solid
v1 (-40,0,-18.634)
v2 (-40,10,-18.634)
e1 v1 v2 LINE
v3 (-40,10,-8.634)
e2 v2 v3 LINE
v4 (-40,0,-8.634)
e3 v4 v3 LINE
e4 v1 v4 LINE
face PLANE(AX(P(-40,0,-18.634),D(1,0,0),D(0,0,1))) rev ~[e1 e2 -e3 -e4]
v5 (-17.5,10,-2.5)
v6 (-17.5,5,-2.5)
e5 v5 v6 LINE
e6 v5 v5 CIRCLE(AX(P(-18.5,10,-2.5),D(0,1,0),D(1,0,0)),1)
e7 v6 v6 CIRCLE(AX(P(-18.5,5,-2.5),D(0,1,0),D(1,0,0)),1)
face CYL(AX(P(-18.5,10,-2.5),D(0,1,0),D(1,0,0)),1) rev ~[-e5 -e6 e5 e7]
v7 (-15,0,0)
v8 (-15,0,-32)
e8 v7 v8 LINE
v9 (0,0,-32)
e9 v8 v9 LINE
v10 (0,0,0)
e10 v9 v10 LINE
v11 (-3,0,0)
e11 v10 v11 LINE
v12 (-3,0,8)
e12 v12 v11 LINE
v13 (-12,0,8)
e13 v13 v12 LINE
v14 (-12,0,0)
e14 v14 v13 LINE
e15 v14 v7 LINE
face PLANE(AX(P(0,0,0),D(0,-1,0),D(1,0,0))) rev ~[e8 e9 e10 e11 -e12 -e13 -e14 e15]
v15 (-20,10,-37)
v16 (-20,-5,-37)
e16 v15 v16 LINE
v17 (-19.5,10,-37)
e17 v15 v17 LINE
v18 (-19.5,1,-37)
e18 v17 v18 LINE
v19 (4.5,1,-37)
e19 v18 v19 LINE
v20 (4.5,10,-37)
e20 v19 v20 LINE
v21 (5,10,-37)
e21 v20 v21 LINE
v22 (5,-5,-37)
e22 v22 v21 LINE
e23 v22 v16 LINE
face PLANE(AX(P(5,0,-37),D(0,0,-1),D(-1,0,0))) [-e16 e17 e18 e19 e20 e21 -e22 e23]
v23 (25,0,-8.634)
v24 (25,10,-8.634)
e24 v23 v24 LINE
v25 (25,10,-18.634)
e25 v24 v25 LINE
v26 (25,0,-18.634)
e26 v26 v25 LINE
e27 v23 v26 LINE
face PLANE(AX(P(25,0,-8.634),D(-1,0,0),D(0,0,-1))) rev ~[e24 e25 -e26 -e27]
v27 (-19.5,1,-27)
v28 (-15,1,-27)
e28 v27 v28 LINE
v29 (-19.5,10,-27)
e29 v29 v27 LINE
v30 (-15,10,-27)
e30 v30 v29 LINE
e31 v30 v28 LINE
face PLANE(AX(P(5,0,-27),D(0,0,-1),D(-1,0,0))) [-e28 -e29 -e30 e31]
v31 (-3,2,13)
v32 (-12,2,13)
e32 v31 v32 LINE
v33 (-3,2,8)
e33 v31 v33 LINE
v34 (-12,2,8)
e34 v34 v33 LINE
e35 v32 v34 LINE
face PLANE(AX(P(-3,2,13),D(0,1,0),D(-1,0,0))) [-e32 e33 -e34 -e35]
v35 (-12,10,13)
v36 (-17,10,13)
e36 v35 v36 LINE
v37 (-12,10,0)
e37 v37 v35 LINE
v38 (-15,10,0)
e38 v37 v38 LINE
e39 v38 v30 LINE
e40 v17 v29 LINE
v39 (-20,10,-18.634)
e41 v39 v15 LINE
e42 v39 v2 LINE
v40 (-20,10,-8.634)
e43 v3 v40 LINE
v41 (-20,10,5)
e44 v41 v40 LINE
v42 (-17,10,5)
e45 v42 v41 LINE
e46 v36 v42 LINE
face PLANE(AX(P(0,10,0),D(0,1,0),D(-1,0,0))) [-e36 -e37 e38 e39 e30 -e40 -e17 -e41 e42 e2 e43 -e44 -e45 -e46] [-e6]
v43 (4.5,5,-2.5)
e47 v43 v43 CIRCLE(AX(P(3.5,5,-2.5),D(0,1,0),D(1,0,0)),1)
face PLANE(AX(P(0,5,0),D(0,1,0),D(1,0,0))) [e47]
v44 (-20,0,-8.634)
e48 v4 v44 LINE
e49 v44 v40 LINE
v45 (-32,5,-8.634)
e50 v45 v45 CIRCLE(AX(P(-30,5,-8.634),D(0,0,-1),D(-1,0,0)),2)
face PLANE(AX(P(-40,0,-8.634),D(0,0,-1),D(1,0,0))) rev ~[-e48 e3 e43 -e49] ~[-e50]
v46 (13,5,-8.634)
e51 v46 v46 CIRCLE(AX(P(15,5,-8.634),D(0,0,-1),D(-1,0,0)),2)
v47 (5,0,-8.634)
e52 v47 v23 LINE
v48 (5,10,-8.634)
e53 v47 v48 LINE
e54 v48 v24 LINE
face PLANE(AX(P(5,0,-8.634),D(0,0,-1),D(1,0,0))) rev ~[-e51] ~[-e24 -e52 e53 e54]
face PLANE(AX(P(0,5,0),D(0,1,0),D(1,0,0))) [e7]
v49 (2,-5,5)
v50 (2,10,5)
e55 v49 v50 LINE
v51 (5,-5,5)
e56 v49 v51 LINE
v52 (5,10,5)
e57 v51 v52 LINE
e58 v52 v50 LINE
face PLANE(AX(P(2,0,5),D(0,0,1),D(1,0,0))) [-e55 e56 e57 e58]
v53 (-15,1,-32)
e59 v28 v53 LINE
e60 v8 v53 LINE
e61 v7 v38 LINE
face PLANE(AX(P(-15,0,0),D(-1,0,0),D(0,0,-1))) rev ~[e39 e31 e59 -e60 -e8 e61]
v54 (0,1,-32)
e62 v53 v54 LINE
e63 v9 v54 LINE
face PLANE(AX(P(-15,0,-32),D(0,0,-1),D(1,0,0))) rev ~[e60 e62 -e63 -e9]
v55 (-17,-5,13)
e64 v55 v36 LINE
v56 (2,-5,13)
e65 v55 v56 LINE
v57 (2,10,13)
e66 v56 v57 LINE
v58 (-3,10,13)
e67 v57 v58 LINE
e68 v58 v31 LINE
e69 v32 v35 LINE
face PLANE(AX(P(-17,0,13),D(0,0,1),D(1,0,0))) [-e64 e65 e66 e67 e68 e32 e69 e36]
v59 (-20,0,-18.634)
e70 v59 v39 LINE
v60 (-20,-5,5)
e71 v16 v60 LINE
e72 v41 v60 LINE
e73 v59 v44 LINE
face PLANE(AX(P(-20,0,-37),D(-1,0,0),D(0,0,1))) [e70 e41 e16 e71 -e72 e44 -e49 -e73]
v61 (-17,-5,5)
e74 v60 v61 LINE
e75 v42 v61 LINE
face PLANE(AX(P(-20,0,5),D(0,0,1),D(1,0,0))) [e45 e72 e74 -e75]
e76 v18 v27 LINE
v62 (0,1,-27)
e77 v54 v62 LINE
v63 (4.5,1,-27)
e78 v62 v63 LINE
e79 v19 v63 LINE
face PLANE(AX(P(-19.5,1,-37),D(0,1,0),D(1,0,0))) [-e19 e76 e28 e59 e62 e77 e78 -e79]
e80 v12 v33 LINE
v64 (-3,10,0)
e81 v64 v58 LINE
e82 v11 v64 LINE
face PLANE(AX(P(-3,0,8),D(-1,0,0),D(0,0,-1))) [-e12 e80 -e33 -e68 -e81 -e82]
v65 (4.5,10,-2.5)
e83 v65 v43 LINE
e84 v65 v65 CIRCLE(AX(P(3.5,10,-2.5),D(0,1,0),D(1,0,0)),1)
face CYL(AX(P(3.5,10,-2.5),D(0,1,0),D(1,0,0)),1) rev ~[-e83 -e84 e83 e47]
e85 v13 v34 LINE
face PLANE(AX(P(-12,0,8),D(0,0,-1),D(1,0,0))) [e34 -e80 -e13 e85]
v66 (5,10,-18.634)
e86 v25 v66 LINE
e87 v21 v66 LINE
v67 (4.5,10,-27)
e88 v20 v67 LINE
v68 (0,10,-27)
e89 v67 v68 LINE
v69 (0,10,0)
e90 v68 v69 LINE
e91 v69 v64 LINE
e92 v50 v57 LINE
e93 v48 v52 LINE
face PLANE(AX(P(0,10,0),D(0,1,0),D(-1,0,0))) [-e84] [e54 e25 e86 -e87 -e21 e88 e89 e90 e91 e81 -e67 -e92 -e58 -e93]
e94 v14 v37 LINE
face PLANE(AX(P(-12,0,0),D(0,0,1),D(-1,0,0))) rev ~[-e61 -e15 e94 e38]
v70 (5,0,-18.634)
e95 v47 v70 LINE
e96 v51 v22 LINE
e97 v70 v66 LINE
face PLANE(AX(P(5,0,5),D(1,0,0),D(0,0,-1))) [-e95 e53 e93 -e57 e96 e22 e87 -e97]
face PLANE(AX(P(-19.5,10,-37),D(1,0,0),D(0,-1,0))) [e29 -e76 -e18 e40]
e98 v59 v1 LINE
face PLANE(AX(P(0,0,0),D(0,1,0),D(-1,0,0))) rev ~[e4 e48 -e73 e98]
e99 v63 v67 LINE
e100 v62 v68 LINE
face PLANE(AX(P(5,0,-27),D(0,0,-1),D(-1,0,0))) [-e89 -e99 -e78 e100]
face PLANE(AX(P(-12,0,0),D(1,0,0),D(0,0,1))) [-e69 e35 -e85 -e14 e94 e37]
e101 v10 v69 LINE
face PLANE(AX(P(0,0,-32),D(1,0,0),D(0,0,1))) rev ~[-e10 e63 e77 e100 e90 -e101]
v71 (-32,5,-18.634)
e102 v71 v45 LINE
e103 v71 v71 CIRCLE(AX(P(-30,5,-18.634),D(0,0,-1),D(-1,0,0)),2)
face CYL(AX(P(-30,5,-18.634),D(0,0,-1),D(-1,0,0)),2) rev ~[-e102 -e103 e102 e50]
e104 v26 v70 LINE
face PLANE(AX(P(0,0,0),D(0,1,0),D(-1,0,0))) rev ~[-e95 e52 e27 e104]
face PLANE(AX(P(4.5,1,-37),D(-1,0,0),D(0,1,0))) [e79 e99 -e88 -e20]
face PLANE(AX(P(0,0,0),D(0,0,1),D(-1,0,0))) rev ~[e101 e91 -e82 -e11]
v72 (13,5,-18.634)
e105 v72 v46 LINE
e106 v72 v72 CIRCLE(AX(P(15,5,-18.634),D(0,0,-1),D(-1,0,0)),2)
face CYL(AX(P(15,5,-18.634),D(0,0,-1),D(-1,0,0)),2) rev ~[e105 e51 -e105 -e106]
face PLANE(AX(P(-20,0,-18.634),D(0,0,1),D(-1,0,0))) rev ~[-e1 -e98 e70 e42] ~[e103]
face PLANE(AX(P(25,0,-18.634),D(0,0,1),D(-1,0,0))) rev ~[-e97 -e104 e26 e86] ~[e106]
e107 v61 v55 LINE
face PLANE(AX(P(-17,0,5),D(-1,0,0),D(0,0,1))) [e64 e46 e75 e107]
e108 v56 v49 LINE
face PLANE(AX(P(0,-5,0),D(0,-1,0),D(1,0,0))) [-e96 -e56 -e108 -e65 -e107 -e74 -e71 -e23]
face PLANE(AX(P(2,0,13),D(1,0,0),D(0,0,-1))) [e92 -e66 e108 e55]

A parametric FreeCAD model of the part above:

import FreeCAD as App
import Part
import Sketcher
from FreeCAD import Vector
Q = App.Units.Quantity

doc = App.newDocument("Part")
body = doc.addObject("PartDesign::Body", "Body")

# Sketch on XZ plane
sketch1 = body.newObject("Sketcher::SketchObject", "Sketch")
sketch1.AttachmentSupport = (doc.getObject("XZ_Plane"), [""])
sketch1.MapMode = "FlatFace"
sketch1.addGeometry(Part.LineSegment(Vector(5, -18.6, 0), Vector(5, -37, 0)), False)
sketch1.addGeometry(Part.LineSegment(Vector(5, -37, 0), Vector(-20, -37, 0)), False)
sketch1.addGeometry(Part.LineSegment(Vector(-20, -37, 0), Vector(-20, -18.6, 0)), False)
sketch1.addGeometry(Part.LineSegment(Vector(-20, -18.6, 0), Vector(-40, -18.6, 0)), False)
sketch1.addGeometry(Part.LineSegment(Vector(-40, -18.6, 0), Vector(-40, -8.6, 0)), False)
sketch1.addGeometry(Part.LineSegment(Vector(-40, -8.6, 0), Vector(-20, -8.6, 0)), False)
sketch1.addGeometry(Part.LineSegment(Vector(-20, -8.6, 0), Vector(-20, 5, 0)), False)
sketch1.addGeometry(Part.LineSegment(Vector(-20, 5, 0), Vector(-17, 5, 0)), False)
sketch1.addGeometry(Part.LineSegment(Vector(-17, 5, 0), Vector(-17, 13, 0)), False)
sketch1.addGeometry(Part.LineSegment(Vector(-17, 13, 0), Vector(2, 13, 0)), False)
sketch1.addGeometry(Part.LineSegment(Vector(2, 13, 0), Vector(2, 5, 0)), False)
sketch1.addGeometry(Part.LineSegment(Vector(2, 5, 0), Vector(5, 5, 0)), False)
sketch1.addGeometry(Part.LineSegment(Vector(5, 5, 0), Vector(5, -8.6, 0)), False)
sketch1.addGeometry(Part.LineSegment(Vector(5, -8.6, 0), Vector(25, -8.6, 0)), False)
sketch1.addGeometry(Part.LineSegment(Vector(25, -8.6, 0), Vector(25, -18.6, 0)), False)
sketch1.addGeometry(Part.LineSegment(Vector(25, -18.6, 0), Vector(5, -18.6, 0)), False)
sketch1.addGeometry(Part.LineSegment(Vector(0, -32, 0), Vector(0, 0, 0)), False)
sketch1.addGeometry(Part.LineSegment(Vector(0, 0, 0), Vector(-3, 0, 0)), False)
sketch1.addGeometry(Part.LineSegment(Vector(-3, 0, 0), Vector(-3, 8, 0)), False)
sketch1.addGeometry(Part.LineSegment(Vector(-3, 8, 0), Vector(-12, 8, 0)), False)
sketch1.addGeometry(Part.LineSegment(Vector(-12, 8, 0), Vector(-12, 0, 0)), False)
sketch1.addGeometry(Part.LineSegment(Vector(-12, 0, 0), Vector(-15, 0, 0)), False)
sketch1.addGeometry(Part.LineSegment(Vector(-15, 0, 0), Vector(-15, -32, 0)), False)
sketch1.addGeometry(Part.LineSegment(Vector(-15, -32, 0), Vector(0, -32, 0)), False)
sketch1.addConstraint(Sketcher.Constraint("Coincident", 0, 2, 1, 1))
sketch1.addConstraint(Sketcher.Constraint("Coincident", 1, 2, 2, 1))
sketch1.addConstraint(Sketcher.Constraint("Coincident", 2, 2, 3, 1))
sketch1.addConstraint(Sketcher.Constraint("Coincident", 3, 2, 4, 1))
sketch1.addConstraint(Sketcher.Constraint("Coincident", 4, 2, 5, 1))
sketch1.addConstraint(Sketcher.Constraint("Coincident", 5, 2, 6, 1))
sketch1.addConstraint(Sketcher.Constraint("Coincident", 6, 2, 7, 1))
sketch1.addConstraint(Sketcher.Constraint("Coincident", 7, 2, 8, 1))
sketch1.addConstraint(Sketcher.Constraint("Coincident", 8, 2, 9, 1))
sketch1.addConstraint(Sketcher.Constraint("Coincident", 9, 2, 10, 1))
sketch1.addConstraint(Sketcher.Constraint("Coincident", 10, 2, 11, 1))
sketch1.addConstraint(Sketcher.Constraint("Coincident", 11, 2, 12, 1))
sketch1.addConstraint(Sketcher.Constraint("Coincident", 12, 2, 13, 1))
sketch1.addConstraint(Sketcher.Constraint("Coincident", 13, 2, 14, 1))
sketch1.addConstraint(Sketcher.Constraint("Coincident", 14, 2, 15, 1))
sketch1.addConstraint(Sketcher.Constraint("Coincident", 15, 2, 0, 1))
sketch1.addConstraint(Sketcher.Constraint("Coincident", 16, 2, 17, 1))
sketch1.addConstraint(Sketcher.Constraint("Coincident", 17, 2, 18, 1))
sketch1.addConstraint(Sketcher.Constraint("Coincident", 18, 2, 19, 1))
sketch1.addConstraint(Sketcher.Constraint("Coincident", 19, 2, 20, 1))
sketch1.addConstraint(Sketcher.Constraint("Coincident", 20, 2, 21, 1))
sketch1.addConstraint(Sketcher.Constraint("Coincident", 21, 2, 22, 1))
sketch1.addConstraint(Sketcher.Constraint("Coincident", 22, 2, 23, 1))
sketch1.addConstraint(Sketcher.Constraint("Coincident", 23, 2, 16, 1))
sketch1.addConstraint(Sketcher.Constraint("Vertical", 0))
sketch1.addConstraint(Sketcher.Constraint("Horizontal", 1))
sketch1.addConstraint(Sketcher.Constraint("Vertical", 2))
sketch1.addConstraint(Sketcher.Constraint("Horizontal", 3))
sketch1.addConstraint(Sketcher.Constraint("Vertical", 4))
sketch1.addConstraint(Sketcher.Constraint("Horizontal", 5))
sketch1.addConstraint(Sketcher.Constraint("Vertical", 6))
sketch1.addConstraint(Sketcher.Constraint("Horizontal", 7))
sketch1.addConstraint(Sketcher.Constraint("Vertical", 8))
sketch1.addConstraint(Sketcher.Constraint("Horizontal", 9))
sketch1.addConstraint(Sketcher.Constraint("Vertical", 10))
sketch1.addConstraint(Sketcher.Constraint("Horizontal", 11))
sketch1.addConstraint(Sketcher.Constraint("Vertical", 12))
sketch1.addConstraint(Sketcher.Constraint("Horizontal", 13))
sketch1.addConstraint(Sketcher.Constraint("Vertical", 14))
sketch1.addConstraint(Sketcher.Constraint("Horizontal", 15))
sketch1.addConstraint(Sketcher.Constraint("Vertical", 16))
sketch1.addConstraint(Sketcher.Constraint("Horizontal", 17))
sketch1.addConstraint(Sketcher.Constraint("Vertical", 18))
sketch1.addConstraint(Sketcher.Constraint("Horizontal", 19))
sketch1.addConstraint(Sketcher.Constraint("Vertical", 20))
sketch1.addConstraint(Sketcher.Constraint("Horizontal", 21))
sketch1.addConstraint(Sketcher.Constraint("Vertical", 22))
sketch1.addConstraint(Sketcher.Constraint("Horizontal", 23))
sketch1.addConstraint(Sketcher.Constraint("Coincident", 16, 2, -1, 1))
sketch1.addConstraint(Sketcher.Constraint("PointOnObject", 20, 2, -1))
sketch1.addConstraint(Sketcher.Constraint("Horizontal", 7, 2, 10, 2))
sketch1.addConstraint(Sketcher.Constraint("Horizontal", 5, 2, 12, 2))
sketch1.addConstraint(Sketcher.Constraint("Horizontal", 3, 2, 14, 2))
sketch1.addConstraint(Sketcher.Constraint("Vertical", 2, 2, 5, 2))
sketch1.addConstraint(Sketcher.Constraint("Vertical", 0, 2, 11, 2))
sketch1.addConstraint(Sketcher.Constraint("Equal", 7, 11))
sketch1.addConstraint(Sketcher.Constraint("Equal", 5, 13))
sketch1.addConstraint(Sketcher.Constraint("Equal", 11, 17))
sketch1.addConstraint(Sketcher.Constraint("Equal", 17, 21))
sketch1.addConstraint(Sketcher.Constraint("Equal", 10, 18))
sketch1.addConstraint(Sketcher.Constraint("DistanceX", 3, 2, 3, 1, Q("20 mm")))
sketch1.addConstraint(Sketcher.Constraint("DistanceX", 7, 1, 7, 2, Q("3 mm")))
sketch1.addConstraint(Sketcher.Constraint("DistanceX", 19, 2, 19, 1, Q("9 mm")))
sketch1.addConstraint(Sketcher.Constraint("DistanceY", 4, 1, 4, 2, Q("10 mm")))
sketch1.addConstraint(Sketcher.Constraint("DistanceY", 8, 1, 8, 2, Q("8 mm")))
sketch1.addConstraint(Sketcher.Constraint("DistanceY", 16, 1, 16, 2, Q("32 mm")))
sketch1.addConstraint(Sketcher.Constraint("DistanceX", -1, 1, 0, 2, Q("5 mm")))
sketch1.addConstraint(Sketcher.Constraint("DistanceX", 1, 2, -1, 1, Q("20 mm")))
sketch1.addConstraint(Sketcher.Constraint("DistanceY", -1, 1, 6, 2, Q("5 mm")))
sketch1.addConstraint(Sketcher.Constraint("DistanceY", 1, 2, 22, 2, Q("5 mm")))
sketch1.addConstraint(Sketcher.Constraint("DistanceY", 0, 2, 0, 1, Q("18.366 mm")))
pad1 = body.newObject("PartDesign::Pad", "Pad")
pad1.Profile = sketch1
pad1.Length = 10
pad1.Reversed = True

# Sketch on XY plane
sketch2 = body.newObject("Sketcher::SketchObject", "Sketch001")
sketch2.AttachmentSupport = (doc.getObject("XY_Plane"), [""])
sketch2.MapMode = "FlatFace"
sketch2.AttachmentOffset = App.Placement(Vector(0, 0, -37), App.Rotation())
sketch2.addGeometry(Part.LineSegment(Vector(-20, 10, 0), Vector(4, 10, 0)), False)
sketch2.addGeometry(Part.LineSegment(Vector(4, 10, 0), Vector(4, 1, 0)), False)
sketch2.addGeometry(Part.LineSegment(Vector(4, 1, 0), Vector(-20, 1, 0)), False)
sketch2.addGeometry(Part.LineSegment(Vector(-20, 1, 0), Vector(-20, 10, 0)), False)
sketch2.addConstraint(Sketcher.Constraint("Coincident", 0, 2, 1, 1))
sketch2.addConstraint(Sketcher.Constraint("Coincident", 1, 2, 2, 1))
sketch2.addConstraint(Sketcher.Constraint("Coincident", 2, 2, 3, 1))
sketch2.addConstraint(Sketcher.Constraint("Coincident", 3, 2, 0, 1))
sketch2.addConstraint(Sketcher.Constraint("Horizontal", 0))
sketch2.addConstraint(Sketcher.Constraint("Vertical", 1))
sketch2.addConstraint(Sketcher.Constraint("Horizontal", 2))
sketch2.addConstraint(Sketcher.Constraint("Vertical", 3))
sketch2.addConstraint(Sketcher.Constraint("DistanceY", -1, 1, 1, 2, Q("1 mm")))
sketch2.addConstraint(Sketcher.Constraint("DistanceX", 0, 1, 0, 2, Q("24 mm")))
sketch2.addConstraint(Sketcher.Constraint("DistanceY", 1, 2, 1, 1, Q("9 mm")))
sketch2.addConstraint(Sketcher.Constraint("DistanceX", -1, 1, 0, 2, Q("4.5 mm")))
pocket1 = body.newObject("PartDesign::Pocket", "Pocket")
pocket1.Profile = sketch2
pocket1.Length = 10
pocket1.Reversed = True

# Sketch on XY plane
sketch3 = body.newObject("Sketcher::SketchObject", "Sketch002")
sketch3.AttachmentSupport = (doc.getObject("XY_Plane"), [""])
sketch3.MapMode = "FlatFace"
sketch3.AttachmentOffset = App.Placement(Vector(0, 0, 13), App.Rotation())
sketch3.addGeometry(Part.LineSegment(Vector(-3, 10, 0), Vector(-12, 10, 0)), False)
sketch3.addGeometry(Part.LineSegment(Vector(-12, 10, 0), Vector(-12, 2, 0)), False)
sketch3.addGeometry(Part.LineSegment(Vector(-12, 2, 0), Vector(-3, 2, 0)), False)
sketch3.addGeometry(Part.LineSegment(Vector(-3, 2, 0), Vector(-3, 10, 0)), False)
sketch3.addConstraint(Sketcher.Constraint("Coincident", 0, 2, 1, 1))
sketch3.addConstraint(Sketcher.Constraint("Coincident", 1, 2, 2, 1))
sketch3.addConstraint(Sketcher.Constraint("Coincident", 2, 2, 3, 1))
sketch3.addConstraint(Sketcher.Constraint("Coincident", 3, 2, 0, 1))
sketch3.addConstraint(Sketcher.Constraint("Horizontal", 0))
sketch3.addConstraint(Sketcher.Constraint("Vertical", 1))
sketch3.addConstraint(Sketcher.Constraint("Horizontal", 2))
sketch3.addConstraint(Sketcher.Constraint("Vertical", 3))
sketch3.addConstraint(Sketcher.Constraint("DistanceY", -1, 1, 1, 2, Q("2 mm")))
sketch3.addConstraint(Sketcher.Constraint("DistanceX", 0, 2, 0, 1, Q("9 mm")))
sketch3.addConstraint(Sketcher.Constraint("DistanceY", 1, 2, 1, 1, Q("8 mm")))
sketch3.addConstraint(Sketcher.Constraint("DistanceX", 0, 2, -1, 1, Q("12 mm")))
pocket2 = body.newObject("PartDesign::Pocket", "Pocket001")
pocket2.Profile = sketch3
pocket2.Length = 10

# Sketch on XZ plane
sketch4 = body.newObject("Sketcher::SketchObject", "Sketch003")
sketch4.AttachmentSupport = (doc.getObject("XZ_Plane"), [""])
sketch4.MapMode = "FlatFace"
sketch4.addGeometry(Part.LineSegment(Vector(-17, 13, 0), Vector(-17, 5, 0)), False)
sketch4.addGeometry(Part.LineSegment(Vector(-17, 5, 0), Vector(-20, 5, 0)), False)
sketch4.addGeometry(Part.LineSegment(Vector(-20, 5, 0), Vector(-20, -37, 0)), False)
sketch4.addGeometry(Part.LineSegment(Vector(-20, -37, 0), Vector(5, -37, 0)), False)
sketch4.addGeometry(Part.LineSegment(Vector(5, -37, 0), Vector(5, 5, 0)), False)
sketch4.addGeometry(Part.LineSegment(Vector(5, 5, 0), Vector(2, 5, 0)), False)
sketch4.addGeometry(Part.LineSegment(Vector(2, 5, 0), Vector(2, 13, 0)), False)
sketch4.addGeometry(Part.LineSegment(Vector(2, 13, 0), Vector(-17, 13, 0)), False)
sketch4.addConstraint(Sketcher.Constraint("Coincident", 0, 2, 1, 1))
sketch4.addConstraint(Sketcher.Constraint("Coincident", 1, 2, 2, 1))
sketch4.addConstraint(Sketcher.Constraint("Coincident", 2, 2, 3, 1))
sketch4.addConstraint(Sketcher.Constraint("Coincident", 3, 2, 4, 1))
sketch4.addConstraint(Sketcher.Constraint("Coincident", 4, 2, 5, 1))
sketch4.addConstraint(Sketcher.Constraint("Coincident", 5, 2, 6, 1))
sketch4.addConstraint(Sketcher.Constraint("Coincident", 6, 2, 7, 1))
sketch4.addConstraint(Sketcher.Constraint("Coincident", 7, 2, 0, 1))
sketch4.addConstraint(Sketcher.Constraint("Vertical", 0))
sketch4.addConstraint(Sketcher.Constraint("Horizontal", 1))
sketch4.addConstraint(Sketcher.Constraint("Vertical", 2))
sketch4.addConstraint(Sketcher.Constraint("Horizontal", 3))
sketch4.addConstraint(Sketcher.Constraint("Vertical", 4))
sketch4.addConstraint(Sketcher.Constraint("Horizontal", 5))
sketch4.addConstraint(Sketcher.Constraint("Vertical", 6))
sketch4.addConstraint(Sketcher.Constraint("Horizontal", 7))
sketch4.addConstraint(Sketcher.Constraint("Horizontal", 1, 2, 4, 2))
sketch4.addConstraint(Sketcher.Constraint("Equal", 1, 5))
sketch4.addConstraint(Sketcher.Constraint("DistanceX", 1, 2, 1, 1, Q("3 mm")))
sketch4.addConstraint(Sketcher.Constraint("DistanceX", 3, 1, 3, 2, Q("25 mm")))
sketch4.addConstraint(Sketcher.Constraint("DistanceY", 0, 2, 0, 1, Q("8 mm")))
sketch4.addConstraint(Sketcher.Constraint("DistanceY", 2, 2, 2, 1, Q("42 mm")))
sketch4.addConstraint(Sketcher.Constraint("DistanceX", 0, 2, -1, 1, Q("17 mm")))
sketch4.addConstraint(Sketcher.Constraint("DistanceY", -1, 1, 0, 2, Q("5 mm")))
pad2 = body.newObject("PartDesign::Pad", "Pad001")
pad2.Profile = sketch4
pad2.Length = 5

# Sketch on XZ plane
sketch5 = body.newObject("Sketcher::SketchObject", "Sketch004")
sketch5.AttachmentSupport = (doc.getObject("XZ_Plane"), [""])
sketch5.MapMode = "FlatFace"
sketch5.AttachmentOffset = App.Placement(Vector(0, 0, -10), App.Rotation())
sketch5.addGeometry(Part.Circle(Vector(-18.5, -2.5, 0), Vector(0, 0, 1), 1), False)
sketch5.addGeometry(Part.Circle(Vector(3.5, -2.5, 0), Vector(0, 0, 1), 1), False)
sketch5.addConstraint(Sketcher.Constraint("Equal", 0, 1))
sketch5.addConstraint(Sketcher.Constraint("Horizontal", 0, 3, 1, 3))
sketch5.addConstraint(Sketcher.Constraint("Diameter", 0, Q("2 mm")))
sketch5.addConstraint(Sketcher.Constraint("DistanceX", 0, 3, 1, 3, Q("22 mm")))
sketch5.addConstraint(Sketcher.Constraint("DistanceX", 0, 3, -1, 1, Q("18.5 mm")))
sketch5.addConstraint(Sketcher.Constraint("DistanceY", 0, 3, -1, 1, Q("2.5 mm")))
pocket3 = body.newObject("PartDesign::Pocket", "Pocket002")
pocket3.Profile = sketch5
pocket3.Length = 5
pocket3.Reversed = True

# Sketch on XY plane
sketch6 = body.newObject("Sketcher::SketchObject", "Sketch005")
sketch6.AttachmentSupport = (doc.getObject("XY_Plane"), [""])
sketch6.MapMode = "FlatFace"
sketch6.AttachmentOffset = App.Placement(Vector(0, 0, -18.634), App.Rotation())
sketch6.addGeometry(Part.Circle(Vector(15, 5, 0), Vector(0, 0, 1), 2), False)
sketch6.addGeometry(Part.Circle(Vector(-30, 5, 0), Vector(0, 0, 1), 2), False)
sketch6.addConstraint(Sketcher.Constraint("Equal", 0, 1))
sketch6.addConstraint(Sketcher.Constraint("Horizontal", 0, 3, 1, 3))
sketch6.addConstraint(Sketcher.Constraint("Diameter", 0, Q("4 mm")))
sketch6.addConstraint(Sketcher.Constraint("DistanceY", -1, 1, 0, 3, Q("5 mm")))
sketch6.addConstraint(Sketcher.Constraint("DistanceX", -1, 1, 0, 3, Q("15 mm")))
sketch6.addConstraint(Sketcher.Constraint("DistanceX", 1, 3, -1, 1, Q("30 mm")))
pocket4 = body.newObject("PartDesign::Pocket", "Pocket003")
pocket4.Profile = sketch6
pocket4.Length = 10
pocket4.Reversed = True

doc.recompute()
